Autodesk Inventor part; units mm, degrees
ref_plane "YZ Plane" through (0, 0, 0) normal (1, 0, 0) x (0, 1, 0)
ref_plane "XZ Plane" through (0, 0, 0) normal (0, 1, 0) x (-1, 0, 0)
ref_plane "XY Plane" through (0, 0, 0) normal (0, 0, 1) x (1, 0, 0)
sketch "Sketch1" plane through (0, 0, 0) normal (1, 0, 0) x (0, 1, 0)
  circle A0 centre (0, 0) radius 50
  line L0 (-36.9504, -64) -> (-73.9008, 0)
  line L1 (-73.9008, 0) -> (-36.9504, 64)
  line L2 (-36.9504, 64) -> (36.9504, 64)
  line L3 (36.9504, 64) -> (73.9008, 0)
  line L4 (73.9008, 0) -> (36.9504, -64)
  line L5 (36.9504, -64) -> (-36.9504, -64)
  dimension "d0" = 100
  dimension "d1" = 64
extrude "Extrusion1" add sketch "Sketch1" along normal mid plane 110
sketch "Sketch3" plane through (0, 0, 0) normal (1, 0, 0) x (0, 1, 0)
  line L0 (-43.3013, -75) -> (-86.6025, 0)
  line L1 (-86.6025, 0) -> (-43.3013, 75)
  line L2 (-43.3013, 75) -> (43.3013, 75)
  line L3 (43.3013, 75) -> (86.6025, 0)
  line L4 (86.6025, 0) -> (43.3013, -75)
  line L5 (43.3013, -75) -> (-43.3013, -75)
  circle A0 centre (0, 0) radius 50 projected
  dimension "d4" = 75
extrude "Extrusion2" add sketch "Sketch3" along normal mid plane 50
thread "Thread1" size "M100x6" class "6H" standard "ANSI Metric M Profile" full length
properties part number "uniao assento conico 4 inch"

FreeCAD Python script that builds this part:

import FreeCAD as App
import Part
import Sketcher
from FreeCAD import Vector
Q = App.Units.Quantity

doc = App.newDocument("Part")
body = doc.addObject("PartDesign::Body", "Body")

sketch1 = body.newObject("Sketcher::SketchObject", "Sketch")
sketch1.AttachmentSupport = (doc.getObject("YZ_Plane"), [""])
sketch1.MapMode = "FlatFace"
sketch1.addGeometry(Part.LineSegment(Vector(-74, 0, 0), Vector(-37, -64, 0)), False)
sketch1.addGeometry(Part.LineSegment(Vector(-37, -64, 0), Vector(37, -64, 0)), False)
sketch1.addGeometry(Part.LineSegment(Vector(37, -64, 0), Vector(74, 0, 0)), False)
sketch1.addGeometry(Part.LineSegment(Vector(74, 0, 0), Vector(37, 64, 0)), False)
sketch1.addGeometry(Part.LineSegment(Vector(37, 64, 0), Vector(-37, 64, 0)), False)
sketch1.addGeometry(Part.LineSegment(Vector(-37, 64, 0), Vector(-74, 0, 0)), False)
sketch1.addGeometry(Part.Circle(Vector(0, 0, 0), Vector(0, 0, 1), 50), False)
sketch1.addConstraint(Sketcher.Constraint("Coincident", 0, 2, 1, 1))
sketch1.addConstraint(Sketcher.Constraint("Coincident", 1, 2, 2, 1))
sketch1.addConstraint(Sketcher.Constraint("Coincident", 2, 2, 3, 1))
sketch1.addConstraint(Sketcher.Constraint("Coincident", 3, 2, 4, 1))
sketch1.addConstraint(Sketcher.Constraint("Coincident", 4, 2, 5, 1))
sketch1.addConstraint(Sketcher.Constraint("Coincident", 5, 2, 0, 1))
sketch1.addConstraint(Sketcher.Constraint("Horizontal", 1))
sketch1.addConstraint(Sketcher.Constraint("Horizontal", 4))
sketch1.addConstraint(Sketcher.Constraint("Coincident", 6, 3, -1, 1))
sketch1.addConstraint(Sketcher.Constraint("Symmetric", 0, 2, 3, 2, -1, 1))
sketch1.addConstraint(Sketcher.Constraint("Symmetric", 2, 2, 5, 2, -1, 1))
sketch1.addConstraint(Sketcher.Constraint("PointOnObject", 2, 2, -1))
sketch1.addConstraint(Sketcher.Constraint("Parallel", 2, 5))
sketch1.addConstraint(Sketcher.Constraint("Vertical", 1, 2, 3, 2))
sketch1.addConstraint(Sketcher.Constraint("Diameter", 6, Q("100 mm")))
sketch1.addConstraint(Sketcher.Constraint("DistanceY", 0, 2, -1, 1, Q("64 mm")))
sketch1.addConstraint(Sketcher.Constraint("Angle", 0, Q("-60 deg")))
sketch1.addConstraint(Sketcher.Constraint("DistanceX", 1, 1, 1, 2, Q("73.9008 mm")))
pad1 = body.newObject("PartDesign::Pad", "Pad")
pad1.Profile = sketch1
pad1.Length = 110
pad1.Midplane = True

sketch2 = body.newObject("Sketcher::SketchObject", "Sketch001")
sketch2.AttachmentSupport = (doc.getObject("YZ_Plane"), [""])
sketch2.MapMode = "FlatFace"
sketch2.addGeometry(Part.LineSegment(Vector(-87, 0, 0), Vector(-43, -75, 0)), False)
sketch2.addGeometry(Part.LineSegment(Vector(-43, -75, 0), Vector(43, -75, 0)), False)
sketch2.addGeometry(Part.LineSegment(Vector(43, -75, 0), Vector(87, 0, 0)), False)
sketch2.addGeometry(Part.LineSegment(Vector(87, 0, 0), Vector(43, 75, 0)), False)
sketch2.addGeometry(Part.LineSegment(Vector(43, 75, 0), Vector(-43, 75, 0)), False)
sketch2.addGeometry(Part.LineSegment(Vector(-43, 75, 0), Vector(-87, 0, 0)), False)
sketch2.addGeometry(Part.Circle(Vector(0, 0, 0), Vector(0, 0, 1), 50), False)
sketch2.addConstraint(Sketcher.Constraint("Coincident", 0, 2, 1, 1))
sketch2.addConstraint(Sketcher.Constraint("Coincident", 1, 2, 2, 1))
sketch2.addConstraint(Sketcher.Constraint("Coincident", 2, 2, 3, 1))
sketch2.addConstraint(Sketcher.Constraint("Coincident", 3, 2, 4, 1))
sketch2.addConstraint(Sketcher.Constraint("Coincident", 4, 2, 5, 1))
sketch2.addConstraint(Sketcher.Constraint("Coincident", 5, 2, 0, 1))
sketch2.addConstraint(Sketcher.Constraint("Horizontal", 1))
sketch2.addConstraint(Sketcher.Constraint("Horizontal", 4))
sketch2.addConstraint(Sketcher.Constraint("Coincident", 6, 3, -1, 1))
sketch2.addConstraint(Sketcher.Constraint("Symmetric", 0, 2, 3, 2, -1, 1))
sketch2.addConstraint(Sketcher.Constraint("Symmetric", 2, 2, 5, 2, -1, 1))
sketch2.addConstraint(Sketcher.Constraint("PointOnObject", 2, 2, -1))
sketch2.addConstraint(Sketcher.Constraint("Parallel", 2, 5))
sketch2.addConstraint(Sketcher.Constraint("Vertical", 1, 2, 3, 2))
sketch2.addConstraint(Sketcher.Constraint("Diameter", 6, Q("100 mm")))
sketch2.addConstraint(Sketcher.Constraint("DistanceY", 0, 2, -1, 1, Q("75 mm")))
sketch2.addConstraint(Sketcher.Constraint("Angle", 0, Q("-60 deg")))
sketch2.addConstraint(Sketcher.Constraint("DistanceX", 1, 1, 1, 2, Q("86.6026 mm")))
pad2 = body.newObject("PartDesign::Pad", "Pad001")
pad2.Profile = sketch2
pad2.Length = 50
pad2.Midplane = True

doc.recompute()
